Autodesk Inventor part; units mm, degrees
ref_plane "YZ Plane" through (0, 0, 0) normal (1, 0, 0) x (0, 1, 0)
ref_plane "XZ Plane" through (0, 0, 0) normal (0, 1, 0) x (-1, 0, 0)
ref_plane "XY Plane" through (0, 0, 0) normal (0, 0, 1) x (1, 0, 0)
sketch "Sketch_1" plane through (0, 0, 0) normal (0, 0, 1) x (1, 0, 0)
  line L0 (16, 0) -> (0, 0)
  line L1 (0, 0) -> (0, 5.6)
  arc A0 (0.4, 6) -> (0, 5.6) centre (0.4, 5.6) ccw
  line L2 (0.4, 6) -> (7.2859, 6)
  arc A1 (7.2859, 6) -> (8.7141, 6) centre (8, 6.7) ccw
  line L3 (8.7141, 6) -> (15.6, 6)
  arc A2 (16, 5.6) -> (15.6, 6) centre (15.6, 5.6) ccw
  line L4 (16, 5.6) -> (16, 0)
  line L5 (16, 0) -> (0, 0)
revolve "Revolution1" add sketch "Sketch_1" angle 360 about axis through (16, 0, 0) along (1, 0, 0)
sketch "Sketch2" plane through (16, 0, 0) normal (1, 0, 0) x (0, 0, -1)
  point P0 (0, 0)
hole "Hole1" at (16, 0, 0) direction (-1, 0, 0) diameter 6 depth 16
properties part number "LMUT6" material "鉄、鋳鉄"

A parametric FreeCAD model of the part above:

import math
import FreeCAD as App
import Part
import Sketcher
Q = App.Units.Quantity

doc = App.newDocument("Part")
params = doc.addObject("Spreadsheet::Sheet", "Params")
for row, (alias, value) in enumerate([
    ("sketch1_radius", "1 mm"),
    ("sketch1_radius2", "0.4 mm"),
    ("sketch1_width", "16 mm"),
    ("sketch1_height", "5.6 mm"),
    ("revolution_angle", "360 deg"),
    ("sketch2_diameter", "6 mm"),
    ("hole_diameter", "6 mm"),
    ("hole_depth", "16 mm"),
], start=1):
    params.set(f"A{row}", alias)
    params.set(f"B{row}", "=" + value)
    params.setAlias(f"B{row}", alias)

body = doc.addObject("PartDesign::Body", "Body")

# Sketch on XY plane
sketch1 = body.newObject("Sketcher::SketchObject", "Sketch")
sketch1.AttachmentSupport = (doc.getObject("XY_Plane"), [""])
sketch1.MapMode = "FlatFace"
sketch1.addGeometry([
    Part.LineSegment(App.Vector(0, 0, 0), App.Vector(16, 0, 0)),  # 0
    Part.LineSegment(App.Vector(16, 0, 0), App.Vector(16, 5.6, 0)),  # 1
    Part.ArcOfCircle(Part.Circle(App.Vector(15.6, 5.6, 0), App.Vector(0, 0, 1), 0.4), math.radians(0), math.radians(90)),  # 2
    Part.LineSegment(App.Vector(15.6, 6, 0), App.Vector(8.71, 6, 0)),  # 3
    Part.ArcOfCircle(Part.Circle(App.Vector(8, 6.7, 0), App.Vector(0, 0, 1), 1), math.radians(-136), math.radians(-44)),  # 4
    Part.LineSegment(App.Vector(7.29, 6, 0), App.Vector(0.4, 6, 0)),  # 5
    Part.ArcOfCircle(Part.Circle(App.Vector(0.4, 5.6, 0), App.Vector(0, 0, 1), 0.4), math.radians(90), math.radians(180)),  # 6
    Part.LineSegment(App.Vector(0, 5.6, 0), App.Vector(0, 0, 0)),  # 7
], False)
sketch1.addConstraint([
    Sketcher.Constraint("Coincident", 0, 2, 1, 1),
    Sketcher.Constraint("Tangent", 1, 2, 2, 1),
    Sketcher.Constraint("Tangent", 2, 2, 3, 1),
    Sketcher.Constraint("Coincident", 3, 2, 4, 2),
    Sketcher.Constraint("Coincident", 4, 1, 5, 1),
    Sketcher.Constraint("Tangent", 5, 2, 6, 1),
    Sketcher.Constraint("Tangent", 6, 2, 7, 1),
    Sketcher.Constraint("Coincident", 7, 2, 0, 1),
    Sketcher.Constraint("Horizontal", 0),
    Sketcher.Constraint("Vertical", 1),
    Sketcher.Constraint("Horizontal", 3),
    Sketcher.Constraint("Horizontal", 5),
    Sketcher.Constraint("Vertical", 7),
    Sketcher.Constraint("Coincident", 7, 2, -1, 1),
    Sketcher.Constraint("Equal", 2, 6),
    Sketcher.Constraint("Horizontal", 2, 3, 6, 3),
    Sketcher.Constraint("Equal", 3, 5),
    Sketcher.Constraint("Radius", 4, Q("1 mm")),
    Sketcher.Constraint("Radius", 2, Q("0.4 mm")),
    Sketcher.Constraint("DistanceX", 0, 1, 0, 2, Q("16 mm")),
    Sketcher.Constraint("DistanceY", 1, 1, 1, 2, Q("5.6 mm")),
    Sketcher.Constraint("DistanceY", -1, 1, 4, 3, Q("6.7 mm")),
])
sketch1.setExpression("Constraints[17]", "Params.sketch1_radius")
sketch1.setExpression("Constraints[18]", "Params.sketch1_radius2")
sketch1.setExpression("Constraints[19]", "Params.sketch1_width")
sketch1.setExpression("Constraints[20]", "Params.sketch1_height")
revolution = body.newObject("PartDesign::Revolution", "Revolution")
revolution.Profile = sketch1
revolution.ReferenceAxis = (sketch1, ["H_Axis"])
revolution.setExpression("Angle", "Params.revolution_angle")

# Sketch on YZ plane
sketch2 = body.newObject("Sketcher::SketchObject", "Sketch001")
sketch2.AttachmentSupport = (doc.getObject("YZ_Plane"), [""])
sketch2.MapMode = "FlatFace"
sketch2.AttachmentOffset = App.Placement(App.Vector(0, 0, 16), App.Rotation())
sketch2.addGeometry(Part.Circle(App.Vector(0, 0, 0), App.Vector(0, 0, 1), 3), False)
sketch2.addConstraint([
    Sketcher.Constraint("Coincident", 0, 3, -1, 1),
    Sketcher.Constraint("Diameter", 0, Q("6 mm")),
])
sketch2.setExpression("Constraints[1]", "Params.sketch2_diameter")
doc.recompute()
hole = body.newObject("PartDesign::Hole", "Hole")
hole.Profile = sketch2
hole.ThreadType = "None"
hole.setExpression("Diameter", "Params.hole_diameter")
hole.DepthType = "Dimension"
hole.setExpression("Depth", "Params.hole_depth")
hole.DrillPoint = "Flat"

doc.recompute()
